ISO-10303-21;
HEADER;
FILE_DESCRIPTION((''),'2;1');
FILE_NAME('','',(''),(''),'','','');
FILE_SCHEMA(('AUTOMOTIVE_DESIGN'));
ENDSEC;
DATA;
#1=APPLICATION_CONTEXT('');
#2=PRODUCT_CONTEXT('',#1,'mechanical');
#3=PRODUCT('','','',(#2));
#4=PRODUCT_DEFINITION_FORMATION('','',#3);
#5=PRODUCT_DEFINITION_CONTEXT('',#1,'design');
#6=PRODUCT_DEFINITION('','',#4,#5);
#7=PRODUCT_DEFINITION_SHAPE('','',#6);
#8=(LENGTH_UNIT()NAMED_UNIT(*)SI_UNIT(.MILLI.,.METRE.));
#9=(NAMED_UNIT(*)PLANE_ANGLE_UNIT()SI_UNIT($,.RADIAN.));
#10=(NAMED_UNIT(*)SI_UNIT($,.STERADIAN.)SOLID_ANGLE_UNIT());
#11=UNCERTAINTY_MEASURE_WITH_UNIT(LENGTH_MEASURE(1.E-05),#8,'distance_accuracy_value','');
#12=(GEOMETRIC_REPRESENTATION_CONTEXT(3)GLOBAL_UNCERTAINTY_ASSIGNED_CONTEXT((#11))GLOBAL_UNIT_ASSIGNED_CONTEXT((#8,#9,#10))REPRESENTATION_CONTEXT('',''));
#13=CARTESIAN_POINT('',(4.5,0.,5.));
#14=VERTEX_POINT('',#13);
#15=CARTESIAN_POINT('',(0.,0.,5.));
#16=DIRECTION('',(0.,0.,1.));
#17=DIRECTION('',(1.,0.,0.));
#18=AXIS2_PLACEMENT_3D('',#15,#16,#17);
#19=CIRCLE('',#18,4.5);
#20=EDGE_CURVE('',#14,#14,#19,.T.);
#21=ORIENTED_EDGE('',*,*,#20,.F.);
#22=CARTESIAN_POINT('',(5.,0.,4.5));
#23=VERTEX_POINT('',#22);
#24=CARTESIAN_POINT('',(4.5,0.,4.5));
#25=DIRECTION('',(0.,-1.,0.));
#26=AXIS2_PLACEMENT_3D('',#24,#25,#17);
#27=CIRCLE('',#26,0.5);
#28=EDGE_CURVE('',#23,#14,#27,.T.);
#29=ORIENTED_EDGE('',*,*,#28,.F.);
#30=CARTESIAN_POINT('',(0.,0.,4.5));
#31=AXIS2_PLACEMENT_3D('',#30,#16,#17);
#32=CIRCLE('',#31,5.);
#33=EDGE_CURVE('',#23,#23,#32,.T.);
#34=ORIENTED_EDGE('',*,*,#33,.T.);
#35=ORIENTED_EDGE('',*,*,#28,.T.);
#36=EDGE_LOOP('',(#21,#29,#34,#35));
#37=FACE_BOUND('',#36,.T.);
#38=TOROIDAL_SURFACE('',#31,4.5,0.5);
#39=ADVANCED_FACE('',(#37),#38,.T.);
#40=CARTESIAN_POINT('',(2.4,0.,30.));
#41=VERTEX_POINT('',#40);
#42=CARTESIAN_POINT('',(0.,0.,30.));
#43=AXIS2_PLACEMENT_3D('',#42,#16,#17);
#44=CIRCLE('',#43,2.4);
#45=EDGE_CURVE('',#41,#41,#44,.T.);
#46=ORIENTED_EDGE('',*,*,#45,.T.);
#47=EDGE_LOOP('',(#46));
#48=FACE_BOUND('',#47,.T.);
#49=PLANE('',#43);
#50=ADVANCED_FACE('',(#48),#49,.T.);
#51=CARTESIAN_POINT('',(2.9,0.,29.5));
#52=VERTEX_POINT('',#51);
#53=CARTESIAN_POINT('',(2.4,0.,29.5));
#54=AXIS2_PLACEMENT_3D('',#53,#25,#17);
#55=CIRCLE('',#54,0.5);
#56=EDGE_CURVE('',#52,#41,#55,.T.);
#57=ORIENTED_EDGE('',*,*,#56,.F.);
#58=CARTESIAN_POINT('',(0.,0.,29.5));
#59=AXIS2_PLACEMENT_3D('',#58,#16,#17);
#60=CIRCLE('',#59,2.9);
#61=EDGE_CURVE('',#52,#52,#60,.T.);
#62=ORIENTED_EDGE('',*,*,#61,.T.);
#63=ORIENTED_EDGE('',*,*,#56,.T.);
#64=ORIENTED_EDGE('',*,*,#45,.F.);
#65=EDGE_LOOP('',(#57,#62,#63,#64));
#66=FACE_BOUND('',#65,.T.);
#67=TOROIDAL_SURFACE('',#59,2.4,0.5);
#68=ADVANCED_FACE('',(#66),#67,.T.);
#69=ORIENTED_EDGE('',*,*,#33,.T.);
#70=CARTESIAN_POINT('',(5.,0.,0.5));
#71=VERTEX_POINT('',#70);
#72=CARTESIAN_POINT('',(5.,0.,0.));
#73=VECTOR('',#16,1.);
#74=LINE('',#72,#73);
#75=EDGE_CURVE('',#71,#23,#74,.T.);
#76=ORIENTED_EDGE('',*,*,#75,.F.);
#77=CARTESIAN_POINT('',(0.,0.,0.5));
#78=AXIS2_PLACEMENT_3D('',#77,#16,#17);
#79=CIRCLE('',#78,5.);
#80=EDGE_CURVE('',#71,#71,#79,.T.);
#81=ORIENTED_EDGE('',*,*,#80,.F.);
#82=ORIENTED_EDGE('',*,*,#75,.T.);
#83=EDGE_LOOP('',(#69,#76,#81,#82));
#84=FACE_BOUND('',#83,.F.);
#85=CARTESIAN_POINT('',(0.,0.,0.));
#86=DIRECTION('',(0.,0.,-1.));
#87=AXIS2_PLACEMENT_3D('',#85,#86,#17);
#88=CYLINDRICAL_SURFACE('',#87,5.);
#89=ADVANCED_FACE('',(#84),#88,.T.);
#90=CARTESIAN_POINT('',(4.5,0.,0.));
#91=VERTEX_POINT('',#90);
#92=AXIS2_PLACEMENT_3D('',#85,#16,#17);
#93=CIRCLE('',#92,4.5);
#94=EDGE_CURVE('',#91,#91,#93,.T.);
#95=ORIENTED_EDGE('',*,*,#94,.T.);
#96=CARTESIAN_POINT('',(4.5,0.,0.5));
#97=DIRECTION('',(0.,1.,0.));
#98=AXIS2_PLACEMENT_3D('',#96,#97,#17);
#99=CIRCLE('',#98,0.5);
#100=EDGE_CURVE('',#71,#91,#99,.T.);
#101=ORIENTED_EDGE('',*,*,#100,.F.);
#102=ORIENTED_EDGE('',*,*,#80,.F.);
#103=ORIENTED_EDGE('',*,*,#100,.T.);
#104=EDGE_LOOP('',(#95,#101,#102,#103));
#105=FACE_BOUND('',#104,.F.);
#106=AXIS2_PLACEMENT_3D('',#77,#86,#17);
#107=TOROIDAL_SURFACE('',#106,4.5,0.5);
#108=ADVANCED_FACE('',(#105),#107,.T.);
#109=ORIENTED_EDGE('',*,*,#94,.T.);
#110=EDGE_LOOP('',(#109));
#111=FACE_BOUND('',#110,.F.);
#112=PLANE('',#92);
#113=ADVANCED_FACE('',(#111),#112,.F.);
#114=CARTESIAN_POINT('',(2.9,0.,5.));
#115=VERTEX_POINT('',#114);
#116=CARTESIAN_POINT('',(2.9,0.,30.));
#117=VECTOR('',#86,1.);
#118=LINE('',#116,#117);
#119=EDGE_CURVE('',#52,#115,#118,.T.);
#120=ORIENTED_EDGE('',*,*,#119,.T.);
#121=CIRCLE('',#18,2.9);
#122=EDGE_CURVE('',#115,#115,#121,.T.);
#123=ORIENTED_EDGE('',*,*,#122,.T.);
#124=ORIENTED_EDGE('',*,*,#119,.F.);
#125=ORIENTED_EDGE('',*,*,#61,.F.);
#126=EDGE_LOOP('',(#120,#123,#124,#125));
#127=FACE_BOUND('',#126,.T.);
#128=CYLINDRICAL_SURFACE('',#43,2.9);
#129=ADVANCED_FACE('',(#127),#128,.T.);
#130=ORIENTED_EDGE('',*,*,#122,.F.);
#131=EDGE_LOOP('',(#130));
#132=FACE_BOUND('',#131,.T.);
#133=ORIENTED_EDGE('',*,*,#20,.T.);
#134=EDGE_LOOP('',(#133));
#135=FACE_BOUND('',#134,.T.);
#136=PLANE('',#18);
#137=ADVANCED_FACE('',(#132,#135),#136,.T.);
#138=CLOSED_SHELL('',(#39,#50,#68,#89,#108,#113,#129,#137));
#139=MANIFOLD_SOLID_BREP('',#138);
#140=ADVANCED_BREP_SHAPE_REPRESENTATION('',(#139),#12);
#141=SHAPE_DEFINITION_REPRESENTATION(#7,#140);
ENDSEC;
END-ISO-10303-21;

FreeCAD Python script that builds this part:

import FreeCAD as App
import Part
import Sketcher
from FreeCAD import Vector
Q = App.Units.Quantity


def edges_at(feature, points):
    """Names of the edges that pass closest to the given points."""
    edges = feature.Shape.Edges
    near = lambda p: min(range(len(edges)), key=lambda i: edges[i].distToShape(Part.Vertex(*p))[0])
    return sorted({f"Edge{near(p) + 1}" for p in points})

doc = App.newDocument("Part")
body = doc.addObject("PartDesign::Body", "Body")

# Sketch on XY plane
sketch1 = body.newObject("Sketcher::SketchObject", "Sketch")
sketch1.AttachmentSupport = (doc.getObject("XY_Plane"), [""])
sketch1.MapMode = "FlatFace"
sketch1.addGeometry(Part.Circle(Vector(0, 0, 0), Vector(0, 0, 1), 5), False)
sketch1.addConstraint([
    Sketcher.Constraint("Coincident", 0, 3, -1, 1),
    Sketcher.Constraint("Diameter", 0, Q("10 mm")),
])
pad1 = body.newObject("PartDesign::Pad", "Pad")
pad1.Profile = sketch1
pad1.Length = 30

# Sketch on XY plane
sketch2 = body.newObject("Sketcher::SketchObject", "Sketch001")
sketch2.AttachmentSupport = (doc.getObject("XY_Plane"), [""])
sketch2.MapMode = "FlatFace"
sketch2.AttachmentOffset = App.Placement(Vector(0, 0, 30), App.Rotation())
sketch2.addGeometry([
    Part.Circle(Vector(0, 0, 0), Vector(0, 0, 1), 5),
    Part.Circle(Vector(0, 0, 0), Vector(0, 0, 1), 2.9),
], False)
sketch2.addConstraint([
    Sketcher.Constraint("Coincident", 0, 3, -1, 1),
    Sketcher.Constraint("Coincident", 1, 3, -1, 1),
    Sketcher.Constraint("Diameter", 1, Q("5.8 mm")),
    Sketcher.Constraint("Diameter", 0, Q("10 mm")),
])
pocket1 = body.newObject("PartDesign::Pocket", "Pocket")
pocket1.Profile = sketch2
pocket1.Length = 25
doc.recompute()

fillet = body.newObject("PartDesign::Fillet", "Fillet")
fillet.Base = (pocket1, edges_at(pocket1, [(-2.9, 0, 30), (-5, 0, 5), (-5, 0, 0)]))
fillet.Radius = 0.5

doc.recompute()
